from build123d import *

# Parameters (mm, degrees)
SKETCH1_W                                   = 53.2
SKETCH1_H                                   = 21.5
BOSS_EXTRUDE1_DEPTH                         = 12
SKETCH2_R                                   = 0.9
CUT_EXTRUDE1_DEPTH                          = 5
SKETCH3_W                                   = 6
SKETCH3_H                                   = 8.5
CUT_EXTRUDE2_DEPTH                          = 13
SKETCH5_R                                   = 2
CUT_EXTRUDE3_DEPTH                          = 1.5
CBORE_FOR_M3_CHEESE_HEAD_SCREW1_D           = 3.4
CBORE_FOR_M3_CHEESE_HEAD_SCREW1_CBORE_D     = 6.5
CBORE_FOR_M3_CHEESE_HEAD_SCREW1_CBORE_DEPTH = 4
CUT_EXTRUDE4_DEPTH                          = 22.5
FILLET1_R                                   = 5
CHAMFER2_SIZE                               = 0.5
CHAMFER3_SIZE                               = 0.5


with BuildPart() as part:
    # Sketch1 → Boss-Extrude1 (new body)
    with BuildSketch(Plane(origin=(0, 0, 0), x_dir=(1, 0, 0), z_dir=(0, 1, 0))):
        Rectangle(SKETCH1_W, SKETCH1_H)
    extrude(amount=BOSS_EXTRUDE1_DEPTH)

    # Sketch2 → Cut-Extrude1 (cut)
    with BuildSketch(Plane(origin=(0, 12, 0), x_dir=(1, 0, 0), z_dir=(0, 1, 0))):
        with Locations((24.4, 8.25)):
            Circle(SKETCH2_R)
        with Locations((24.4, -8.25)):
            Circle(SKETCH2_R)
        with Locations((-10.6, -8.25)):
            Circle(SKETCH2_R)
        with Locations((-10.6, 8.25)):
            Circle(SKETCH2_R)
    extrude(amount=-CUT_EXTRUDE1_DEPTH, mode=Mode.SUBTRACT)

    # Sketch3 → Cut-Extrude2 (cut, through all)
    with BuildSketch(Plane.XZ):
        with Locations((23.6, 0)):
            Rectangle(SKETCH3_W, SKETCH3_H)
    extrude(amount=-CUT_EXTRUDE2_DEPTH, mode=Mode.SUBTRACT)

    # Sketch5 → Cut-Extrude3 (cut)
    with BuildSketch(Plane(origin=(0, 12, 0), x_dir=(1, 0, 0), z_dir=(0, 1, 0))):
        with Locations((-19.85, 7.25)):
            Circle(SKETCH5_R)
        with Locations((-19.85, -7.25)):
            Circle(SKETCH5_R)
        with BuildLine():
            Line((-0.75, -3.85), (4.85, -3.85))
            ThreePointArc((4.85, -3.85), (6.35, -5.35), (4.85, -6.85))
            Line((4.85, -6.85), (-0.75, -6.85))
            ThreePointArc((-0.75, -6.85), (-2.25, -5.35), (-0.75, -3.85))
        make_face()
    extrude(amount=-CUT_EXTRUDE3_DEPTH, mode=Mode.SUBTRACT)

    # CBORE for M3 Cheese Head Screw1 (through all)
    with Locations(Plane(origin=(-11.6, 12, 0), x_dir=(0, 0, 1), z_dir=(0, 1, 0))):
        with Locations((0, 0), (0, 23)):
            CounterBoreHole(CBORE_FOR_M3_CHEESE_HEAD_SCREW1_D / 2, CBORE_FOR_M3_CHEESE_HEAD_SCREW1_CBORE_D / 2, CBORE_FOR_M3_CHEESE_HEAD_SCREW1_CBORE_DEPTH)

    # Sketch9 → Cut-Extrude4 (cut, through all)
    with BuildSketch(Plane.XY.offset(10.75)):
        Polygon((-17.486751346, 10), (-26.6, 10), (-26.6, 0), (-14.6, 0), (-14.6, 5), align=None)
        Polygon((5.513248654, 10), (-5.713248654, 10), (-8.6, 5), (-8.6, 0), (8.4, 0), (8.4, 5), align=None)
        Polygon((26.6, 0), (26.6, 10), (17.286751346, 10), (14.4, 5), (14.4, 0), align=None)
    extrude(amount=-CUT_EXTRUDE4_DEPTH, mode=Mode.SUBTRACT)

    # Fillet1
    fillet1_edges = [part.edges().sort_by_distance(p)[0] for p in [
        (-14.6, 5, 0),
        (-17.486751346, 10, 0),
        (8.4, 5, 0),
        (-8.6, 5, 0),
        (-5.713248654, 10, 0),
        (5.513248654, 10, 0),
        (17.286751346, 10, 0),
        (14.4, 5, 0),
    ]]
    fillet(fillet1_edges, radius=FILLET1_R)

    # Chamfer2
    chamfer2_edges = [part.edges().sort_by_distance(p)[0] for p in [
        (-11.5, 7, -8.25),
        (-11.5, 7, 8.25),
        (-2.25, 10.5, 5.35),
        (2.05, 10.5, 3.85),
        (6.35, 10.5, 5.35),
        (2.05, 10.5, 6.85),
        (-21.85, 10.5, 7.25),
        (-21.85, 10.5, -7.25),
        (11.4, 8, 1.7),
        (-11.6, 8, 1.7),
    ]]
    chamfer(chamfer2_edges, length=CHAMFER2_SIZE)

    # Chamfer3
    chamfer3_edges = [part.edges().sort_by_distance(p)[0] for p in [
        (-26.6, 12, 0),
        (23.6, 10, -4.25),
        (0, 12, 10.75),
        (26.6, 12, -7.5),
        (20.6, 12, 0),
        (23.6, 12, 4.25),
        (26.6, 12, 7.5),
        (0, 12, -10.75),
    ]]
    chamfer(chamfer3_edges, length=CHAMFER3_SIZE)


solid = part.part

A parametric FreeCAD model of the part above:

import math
import FreeCAD as App
import Part
import Sketcher
from FreeCAD import Vector
Q = App.Units.Quantity


def edges_at(feature, points):
    """Names of the edges that pass closest to the given points."""
    edges = feature.Shape.Edges
    near = lambda p: min(range(len(edges)), key=lambda i: edges[i].distToShape(Part.Vertex(*p))[0])
    return sorted({f"Edge{near(p) + 1}" for p in points})

doc = App.newDocument("Part")
body = doc.addObject("PartDesign::Body", "Body")

# Sketch on XZ plane
sketch1 = body.newObject("Sketcher::SketchObject", "Sketch")
sketch1.AttachmentSupport = (doc.getObject("XZ_Plane"), [""])
sketch1.MapMode = "FlatFace"
sketch1.addGeometry(Part.LineSegment(Vector(-27, -11, 0), Vector(-27, 11, 0)), False)
sketch1.addGeometry(Part.LineSegment(Vector(-27, 11, 0), Vector(27, 11, 0)), False)
sketch1.addGeometry(Part.LineSegment(Vector(27, 11, 0), Vector(27, -11, 0)), False)
sketch1.addGeometry(Part.LineSegment(Vector(27, -11, 0), Vector(-27, -11, 0)), False)
sketch1.addConstraint(Sketcher.Constraint("Coincident", 0, 2, 1, 1))
sketch1.addConstraint(Sketcher.Constraint("Coincident", 1, 2, 2, 1))
sketch1.addConstraint(Sketcher.Constraint("Coincident", 2, 2, 3, 1))
sketch1.addConstraint(Sketcher.Constraint("Coincident", 3, 2, 0, 1))
sketch1.addConstraint(Sketcher.Constraint("Vertical", 0))
sketch1.addConstraint(Sketcher.Constraint("Horizontal", 1))
sketch1.addConstraint(Sketcher.Constraint("Vertical", 2))
sketch1.addConstraint(Sketcher.Constraint("Horizontal", 3))
sketch1.addConstraint(Sketcher.Constraint("Symmetric", 0, 2, 2, 2, -1, 1))
sketch1.addConstraint(Sketcher.Constraint("DistanceX", 1, 1, 1, 2, 53.2))
sketch1.addConstraint(Sketcher.Constraint("DistanceY", 0, 1, 0, 2, 21.5))
pad1 = body.newObject("PartDesign::Pad", "Pad")
pad1.Profile = sketch1
pad1.Length = 12
pad1.Reversed = True

# Sketch on XZ plane
sketch2 = body.newObject("Sketcher::SketchObject", "Sketch001")
sketch2.AttachmentSupport = (doc.getObject("XZ_Plane"), [""])
sketch2.MapMode = "FlatFace"
sketch2.AttachmentOffset = App.Placement(Vector(0, 0, -12), App.Rotation())
sketch2.addGeometry(Part.Circle(Vector(24.4, -8.2, 0), Vector(0, 0, 1), 0.9), False)
sketch2.addGeometry(Part.Circle(Vector(24.4, 8.2, 0), Vector(0, 0, 1), 0.9), False)
sketch2.addGeometry(Part.Circle(Vector(-10.6, 8.2, 0), Vector(0, 0, 1), 0.9), False)
sketch2.addGeometry(Part.Circle(Vector(-10.6, -8.2, 0), Vector(0, 0, 1), 0.9), False)
sketch2.addConstraint(Sketcher.Constraint("Equal", 0, 1))
sketch2.addConstraint(Sketcher.Constraint("Equal", 1, 2))
sketch2.addConstraint(Sketcher.Constraint("Equal", 2, 3))
sketch2.addConstraint(Sketcher.Constraint("Symmetric", 0, 3, 1, 3, -1))
sketch2.addConstraint(Sketcher.Constraint("Symmetric", 2, 3, 3, 3, -1))
sketch2.addConstraint(Sketcher.Constraint("Horizontal", 1, 3, 2, 3))
sketch2.addConstraint(Sketcher.Constraint("Diameter", 0, 1.8))
sketch2.addConstraint(Sketcher.Constraint("DistanceX", 2, 3, 1, 3, 35.0))
sketch2.addConstraint(Sketcher.Constraint("DistanceX", -1, 1, 0, 3, 24.4))
sketch2.addConstraint(Sketcher.Constraint("DistanceY", 0, 3, 1, 3, 16.5))
pocket1 = body.newObject("PartDesign::Pocket", "Pocket")
pocket1.Profile = sketch2
pocket1.Length = 5
pocket1.Reversed = True

# Sketch on XZ plane
sketch3 = body.newObject("Sketcher::SketchObject", "Sketch002")
sketch3.AttachmentSupport = (doc.getObject("XZ_Plane"), [""])
sketch3.MapMode = "FlatFace"
sketch3.addGeometry(Part.LineSegment(Vector(21, 4, 0), Vector(21, -4, 0)), False)
sketch3.addGeometry(Part.LineSegment(Vector(21, -4, 0), Vector(27, -4, 0)), False)
sketch3.addGeometry(Part.LineSegment(Vector(27, -4, 0), Vector(27, 4, 0)), False)
sketch3.addGeometry(Part.LineSegment(Vector(27, 4, 0), Vector(21, 4, 0)), False)
sketch3.addConstraint(Sketcher.Constraint("Coincident", 0, 2, 1, 1))
sketch3.addConstraint(Sketcher.Constraint("Coincident", 1, 2, 2, 1))
sketch3.addConstraint(Sketcher.Constraint("Coincident", 2, 2, 3, 1))
sketch3.addConstraint(Sketcher.Constraint("Coincident", 3, 2, 0, 1))
sketch3.addConstraint(Sketcher.Constraint("Vertical", 0))
sketch3.addConstraint(Sketcher.Constraint("Horizontal", 1))
sketch3.addConstraint(Sketcher.Constraint("Vertical", 2))
sketch3.addConstraint(Sketcher.Constraint("Horizontal", 3))
sketch3.addConstraint(Sketcher.Constraint("DistanceX", 1, 1, 1, 2, 6.0))
sketch3.addConstraint(Sketcher.Constraint("DistanceY", 0, 2, 0, 1, 8.5))
sketch3.addConstraint(Sketcher.Constraint("DistanceX", -1, 1, 0, 2, 20.6))
sketch3.addConstraint(Sketcher.Constraint("DistanceY", 0, 2, -1, 1, 4.25))
pocket2 = body.newObject("PartDesign::Pocket", "Pocket001")
pocket2.Profile = sketch3
pocket2.Type = "ThroughAll"

# Sketch on XZ plane
sketch4 = body.newObject("Sketcher::SketchObject", "Sketch003")
sketch4.AttachmentSupport = (doc.getObject("XZ_Plane"), [""])
sketch4.MapMode = "FlatFace"
sketch4.AttachmentOffset = App.Placement(Vector(0, 0, -12), App.Rotation())
sketch4.addGeometry(Part.Circle(Vector(-19.9, -7.2, 0), Vector(0, 0, 1), 2), False)
sketch4.addGeometry(Part.Circle(Vector(-19.9, 7.2, 0), Vector(0, 0, 1), 2), False)
sketch4.addGeometry(Part.LineSegment(Vector(4.8, 3.9, 0), Vector(-0.8, 3.9, 0)), False)
sketch4.addGeometry(Part.ArcOfCircle(Part.Circle(Vector(-0.8, 5.3, 0), Vector(0, 0, 1), 1.5), math.radians(90), math.radians(270)), False)
sketch4.addGeometry(Part.LineSegment(Vector(-0.8, 6.8, 0), Vector(4.8, 6.8, 0)), False)
sketch4.addGeometry(Part.ArcOfCircle(Part.Circle(Vector(4.8, 5.3, 0), Vector(0, 0, 1), 1.5), math.radians(-90), math.radians(90)), False)
sketch4.addConstraint(Sketcher.Constraint("Tangent", 2, 2, 3, 2))
sketch4.addConstraint(Sketcher.Constraint("Tangent", 3, 1, 4, 1))
sketch4.addConstraint(Sketcher.Constraint("Tangent", 4, 2, 5, 2))
sketch4.addConstraint(Sketcher.Constraint("Tangent", 5, 1, 2, 1))
sketch4.addConstraint(Sketcher.Constraint("Horizontal", 2))
sketch4.addConstraint(Sketcher.Constraint("Horizontal", 4))
sketch4.addConstraint(Sketcher.Constraint("Equal", 0, 1))
sketch4.addConstraint(Sketcher.Constraint("Symmetric", 0, 3, 1, 3, -1))
sketch4.addConstraint(Sketcher.Constraint("Diameter", 0, 4.0))
sketch4.addConstraint(Sketcher.Constraint("Radius", 3, 1.5))
sketch4.addConstraint(Sketcher.Constraint("DistanceX", 2, 2, 2, 1, 5.6))
sketch4.addConstraint(Sketcher.Constraint("DistanceY", 0, 3, 1, 3, 14.5))
sketch4.addConstraint(Sketcher.Constraint("DistanceX", 1, 3, 3, 3, 19.1))
sketch4.addConstraint(Sketcher.Constraint("DistanceY", 3, 3, 1, 3, 1.9))
sketch4.addConstraint(Sketcher.Constraint("DistanceX", 0, 3, -1, 1, 19.85))
pocket3 = body.newObject("PartDesign::Pocket", "Pocket002")
pocket3.Profile = sketch4
pocket3.Length = 1.5
pocket3.Reversed = True

# Sketch on XZ plane
sketch5 = body.newObject("Sketcher::SketchObject", "Sketch004")
sketch5.AttachmentSupport = (doc.getObject("XZ_Plane"), [""])
sketch5.MapMode = "FlatFace"
sketch5.AttachmentOffset = App.Placement(Vector(0, 0, -12), App.Rotation())
sketch5.addGeometry(Part.Circle(Vector(-11.6, 0, 0), Vector(0, 0, 1), 1.7), False)
sketch5.addGeometry(Part.Circle(Vector(11.4, 0, 0), Vector(0, 0, 1), 1.7), False)
sketch5.addConstraint(Sketcher.Constraint("Equal", 0, 1))
sketch5.addConstraint(Sketcher.Constraint("PointOnObject", 0, 3, -1))
sketch5.addConstraint(Sketcher.Constraint("PointOnObject", 1, 3, -1))
sketch5.addConstraint(Sketcher.Constraint("Diameter", 0, 3.4))
sketch5.addConstraint(Sketcher.Constraint("DistanceX", 0, 3, 1, 3, 23.0))
sketch5.addConstraint(Sketcher.Constraint("DistanceX", 0, 3, -1, 1, 11.6))
doc.recompute()
hole = body.newObject("PartDesign::Hole", "Hole")
hole.Profile = sketch5
hole.ThreadType = "None"
hole.Diameter = 3.4
hole.DepthType = "ThroughAll"
hole.HoleCutType = "Counterbore"
hole.HoleCutDiameter = 6.5
hole.HoleCutDepth = 4
hole.Reversed = True

# Sketch on XY plane
sketch6 = body.newObject("Sketcher::SketchObject", "Sketch005")
sketch6.AttachmentSupport = (doc.getObject("XY_Plane"), [""])
sketch6.MapMode = "FlatFace"
sketch6.AttachmentOffset = App.Placement(Vector(0, 0, 10.75), App.Rotation())
sketch6.addGeometry(Part.LineSegment(Vector(-17, 10, 0), Vector(-27, 10, 0)), False)
sketch6.addGeometry(Part.LineSegment(Vector(-27, 10, 0), Vector(-27, 0, 0)), False)
sketch6.addGeometry(Part.LineSegment(Vector(-27, 0, 0), Vector(-15, 0, 0)), False)
sketch6.addGeometry(Part.LineSegment(Vector(-15, 0, 0), Vector(-15, 5, 0)), False)
sketch6.addGeometry(Part.LineSegment(Vector(-15, 5, 0), Vector(-17, 10, 0)), False)
sketch6.addGeometry(Part.LineSegment(Vector(6, 10, 0), Vector(-6, 10, 0)), False)
sketch6.addGeometry(Part.LineSegment(Vector(-6, 10, 0), Vector(-9, 5, 0)), False)
sketch6.addGeometry(Part.LineSegment(Vector(-9, 5, 0), Vector(-9, 0, 0)), False)
sketch6.addGeometry(Part.LineSegment(Vector(-9, 0, 0), Vector(8, 0, 0)), False)
sketch6.addGeometry(Part.LineSegment(Vector(8, 0, 0), Vector(8, 5, 0)), False)
sketch6.addGeometry(Part.LineSegment(Vector(8, 5, 0), Vector(6, 10, 0)), False)
sketch6.addGeometry(Part.LineSegment(Vector(27, 0, 0), Vector(27, 10, 0)), False)
sketch6.addGeometry(Part.LineSegment(Vector(27, 10, 0), Vector(17, 10, 0)), False)
sketch6.addGeometry(Part.LineSegment(Vector(17, 10, 0), Vector(14, 5, 0)), False)
sketch6.addGeometry(Part.LineSegment(Vector(14, 5, 0), Vector(14, 0, 0)), False)
sketch6.addGeometry(Part.LineSegment(Vector(14, 0, 0), Vector(27, 0, 0)), False)
sketch6.addConstraint(Sketcher.Constraint("Coincident", 0, 2, 1, 1))
sketch6.addConstraint(Sketcher.Constraint("Coincident", 1, 2, 2, 1))
sketch6.addConstraint(Sketcher.Constraint("Coincident", 2, 2, 3, 1))
sketch6.addConstraint(Sketcher.Constraint("Coincident", 3, 2, 4, 1))
sketch6.addConstraint(Sketcher.Constraint("Coincident", 4, 2, 0, 1))
sketch6.addConstraint(Sketcher.Constraint("Coincident", 5, 2, 6, 1))
sketch6.addConstraint(Sketcher.Constraint("Coincident", 6, 2, 7, 1))
sketch6.addConstraint(Sketcher.Constraint("Coincident", 7, 2, 8, 1))
sketch6.addConstraint(Sketcher.Constraint("Coincident", 8, 2, 9, 1))
sketch6.addConstraint(Sketcher.Constraint("Coincident", 9, 2, 10, 1))
sketch6.addConstraint(Sketcher.Constraint("Coincident", 10, 2, 5, 1))
sketch6.addConstraint(Sketcher.Constraint("Coincident", 11, 2, 12, 1))
sketch6.addConstraint(Sketcher.Constraint("Coincident", 12, 2, 13, 1))
sketch6.addConstraint(Sketcher.Constraint("Coincident", 13, 2, 14, 1))
sketch6.addConstraint(Sketcher.Constraint("Coincident", 14, 2, 15, 1))
sketch6.addConstraint(Sketcher.Constraint("Coincident", 15, 2, 11, 1))
sketch6.addConstraint(Sketcher.Constraint("Horizontal", 0))
sketch6.addConstraint(Sketcher.Constraint("Vertical", 1))
sketch6.addConstraint(Sketcher.Constraint("Horizontal", 2))
sketch6.addConstraint(Sketcher.Constraint("Vertical", 3))
sketch6.addConstraint(Sketcher.Constraint("Horizontal", 5))
sketch6.addConstraint(Sketcher.Constraint("Vertical", 7))
sketch6.addConstraint(Sketcher.Constraint("Horizontal", 8))
sketch6.addConstraint(Sketcher.Constraint("Vertical", 9))
sketch6.addConstraint(Sketcher.Constraint("Vertical", 11))
sketch6.addConstraint(Sketcher.Constraint("Horizontal", 12))
sketch6.addConstraint(Sketcher.Constraint("Vertical", 14))
sketch6.addConstraint(Sketcher.Constraint("Horizontal", 15))
sketch6.addConstraint(Sketcher.Constraint("Symmetric", 1, 2, 15, 2, -1, 1))
sketch6.addConstraint(Sketcher.Constraint("PointOnObject", 1, 2, -1))
sketch6.addConstraint(Sketcher.Constraint("PointOnObject", 7, 2, -1))
sketch6.addConstraint(Sketcher.Constraint("Parallel", 4, 10))
sketch6.addConstraint(Sketcher.Constraint("Parallel", 6, 13))
sketch6.addConstraint(Sketcher.Constraint("Horizontal", 4, 2, 5, 2))
sketch6.addConstraint(Sketcher.Constraint("Horizontal", 3, 2, 6, 2))
sketch6.addConstraint(Sketcher.Constraint("Horizontal", 6, 2, 9, 2))
sketch6.addConstraint(Sketcher.Constraint("Horizontal", 10, 2, 11, 2))
sketch6.addConstraint(Sketcher.Constraint("Horizontal", 9, 2, 13, 2))
sketch6.addConstraint(Sketcher.Constraint("Equal", 4, 6))
sketch6.addConstraint(Sketcher.Constraint("DistanceX", 2, 1, 2, 2, 12.0))
sketch6.addConstraint(Sketcher.Constraint("DistanceX", 8, 1, 8, 2, 17.0))
sketch6.addConstraint(Sketcher.Constraint("DistanceY", 1, 2, 1, 1, 10.0))
sketch6.addConstraint(Sketcher.Constraint("DistanceY", 3, 1, 3, 2, 5.0))
sketch6.addConstraint(Sketcher.Constraint("Angle", 4, Q("120 deg")))
sketch6.addConstraint(Sketcher.Constraint("DistanceX", 15, 1, 15, 2, 12.2))
sketch6.addConstraint(Sketcher.Constraint("DistanceX", 3, 2, 6, 2, 6.0))
sketch6.addConstraint(Sketcher.Constraint("DistanceX", 5, 2, 12, 2, 23.0))
pocket4 = body.newObject("PartDesign::Pocket", "Pocket003")
pocket4.Profile = sketch6
pocket4.Type = "ThroughAll"
doc.recompute()

fillet = body.newObject("PartDesign::Fillet", "Fillet")
fillet.Base = (pocket4, edges_at(pocket4, [
    (-14.6, 5, 0),
    (-17.487, 10, 0),
    (8.4, 5, 0),
    (-8.6, 5, 0),
    (-5.713, 10, 0),
    (5.513, 10, 0),
    (17.287, 10, 0),
    (14.4, 5, 0),
]))
fillet.Radius = 5
doc.recompute()

chamfer = body.newObject("PartDesign::Chamfer", "Chamfer")
chamfer.Base = (fillet, edges_at(fillet, [
    (-11.5, 7, -8.25),
    (-11.5, 7, 8.25),
    (-2.25, 10.5, 5.35),
    (2.05, 10.5, 3.85),
    (6.35, 10.5, 5.35),
    (2.05, 10.5, 6.85),
    (-21.85, 10.5, 7.25),
    (-21.85, 10.5, -7.25),
    (11.4, 8, 1.7),
    (-11.6, 8, 1.7),
]))
chamfer.Size = 0.5
doc.recompute()

chamfer2 = body.newObject("PartDesign::Chamfer", "Chamfer001")
chamfer2.Base = (chamfer, edges_at(chamfer, [
    (-26.6, 12, 0),
    (23.6, 10, -4.25),
    (0, 12, 10.75),
    (26.6, 12, -7.5),
    (20.6, 12, 0),
    (23.6, 12, 4.25),
    (26.6, 12, 7.5),
    (0, 12, -10.75),
]))
chamfer2.Size = 0.5

doc.recompute()
